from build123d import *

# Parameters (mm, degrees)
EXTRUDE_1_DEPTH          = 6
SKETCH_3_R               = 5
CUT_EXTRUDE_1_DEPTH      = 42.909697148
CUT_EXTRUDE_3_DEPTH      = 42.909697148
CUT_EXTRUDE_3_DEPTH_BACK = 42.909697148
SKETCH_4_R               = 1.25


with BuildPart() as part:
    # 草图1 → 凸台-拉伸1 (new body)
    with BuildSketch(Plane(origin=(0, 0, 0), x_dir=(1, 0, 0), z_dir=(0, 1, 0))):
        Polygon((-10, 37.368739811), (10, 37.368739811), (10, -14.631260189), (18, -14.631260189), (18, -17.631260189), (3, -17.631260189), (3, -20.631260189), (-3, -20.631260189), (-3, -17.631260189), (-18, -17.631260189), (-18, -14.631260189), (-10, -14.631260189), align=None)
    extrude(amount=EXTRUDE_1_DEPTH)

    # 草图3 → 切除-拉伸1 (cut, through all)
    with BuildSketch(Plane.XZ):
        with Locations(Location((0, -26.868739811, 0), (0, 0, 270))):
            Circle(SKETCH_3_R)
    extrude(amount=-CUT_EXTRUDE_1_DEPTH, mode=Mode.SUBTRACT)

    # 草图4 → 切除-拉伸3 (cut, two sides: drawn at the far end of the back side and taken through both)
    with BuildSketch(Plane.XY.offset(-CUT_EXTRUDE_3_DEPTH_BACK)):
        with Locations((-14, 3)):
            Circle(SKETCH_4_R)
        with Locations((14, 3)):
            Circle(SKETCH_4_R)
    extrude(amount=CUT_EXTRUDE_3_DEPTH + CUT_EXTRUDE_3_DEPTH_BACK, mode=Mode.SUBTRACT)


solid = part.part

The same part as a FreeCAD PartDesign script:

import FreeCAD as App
import Part
import Sketcher

doc = App.newDocument("Part")
body = doc.addObject("PartDesign::Body", "Body")

# Sketch on XZ plane
sketch1 = body.newObject("Sketcher::SketchObject", "Sketch")
sketch1.AttachmentSupport = (doc.getObject("XZ_Plane"), [""])
sketch1.MapMode = "FlatFace"
sketch1.addGeometry(Part.LineSegment(App.Vector(10, -37.4, 0), App.Vector(-10, -37.4, 0)), False)
sketch1.addGeometry(Part.LineSegment(App.Vector(-10, -37.4, 0), App.Vector(-10, 14.6, 0)), False)
sketch1.addGeometry(Part.LineSegment(App.Vector(-10, 14.6, 0), App.Vector(-18, 14.6, 0)), False)
sketch1.addGeometry(Part.LineSegment(App.Vector(-18, 14.6, 0), App.Vector(-18, 17.6, 0)), False)
sketch1.addGeometry(Part.LineSegment(App.Vector(-18, 17.6, 0), App.Vector(-3, 17.6, 0)), False)
sketch1.addGeometry(Part.LineSegment(App.Vector(-3, 17.6, 0), App.Vector(-3, 20.6, 0)), False)
sketch1.addGeometry(Part.LineSegment(App.Vector(-3, 20.6, 0), App.Vector(3, 20.6, 0)), False)
sketch1.addGeometry(Part.LineSegment(App.Vector(3, 20.6, 0), App.Vector(3, 17.6, 0)), False)
sketch1.addGeometry(Part.LineSegment(App.Vector(3, 17.6, 0), App.Vector(18, 17.6, 0)), False)
sketch1.addGeometry(Part.LineSegment(App.Vector(18, 17.6, 0), App.Vector(18, 14.6, 0)), False)
sketch1.addGeometry(Part.LineSegment(App.Vector(18, 14.6, 0), App.Vector(10, 14.6, 0)), False)
sketch1.addGeometry(Part.LineSegment(App.Vector(10, 14.6, 0), App.Vector(10, -37.4, 0)), False)
sketch1.addConstraint(Sketcher.Constraint("Coincident", 0, 2, 1, 1))
sketch1.addConstraint(Sketcher.Constraint("Coincident", 1, 2, 2, 1))
sketch1.addConstraint(Sketcher.Constraint("Coincident", 2, 2, 3, 1))
sketch1.addConstraint(Sketcher.Constraint("Coincident", 3, 2, 4, 1))
sketch1.addConstraint(Sketcher.Constraint("Coincident", 4, 2, 5, 1))
sketch1.addConstraint(Sketcher.Constraint("Coincident", 5, 2, 6, 1))
sketch1.addConstraint(Sketcher.Constraint("Coincident", 6, 2, 7, 1))
sketch1.addConstraint(Sketcher.Constraint("Coincident", 7, 2, 8, 1))
sketch1.addConstraint(Sketcher.Constraint("Coincident", 8, 2, 9, 1))
sketch1.addConstraint(Sketcher.Constraint("Coincident", 9, 2, 10, 1))
sketch1.addConstraint(Sketcher.Constraint("Coincident", 10, 2, 11, 1))
sketch1.addConstraint(Sketcher.Constraint("Coincident", 11, 2, 0, 1))
sketch1.addConstraint(Sketcher.Constraint("Horizontal", 0))
sketch1.addConstraint(Sketcher.Constraint("Vertical", 1))
sketch1.addConstraint(Sketcher.Constraint("Horizontal", 2))
sketch1.addConstraint(Sketcher.Constraint("Vertical", 3))
sketch1.addConstraint(Sketcher.Constraint("Horizontal", 4))
sketch1.addConstraint(Sketcher.Constraint("Vertical", 5))
sketch1.addConstraint(Sketcher.Constraint("Horizontal", 6))
sketch1.addConstraint(Sketcher.Constraint("Vertical", 7))
sketch1.addConstraint(Sketcher.Constraint("Horizontal", 8))
sketch1.addConstraint(Sketcher.Constraint("Vertical", 9))
sketch1.addConstraint(Sketcher.Constraint("Horizontal", 10))
sketch1.addConstraint(Sketcher.Constraint("Vertical", 11))
sketch1.addConstraint(Sketcher.Constraint("Symmetric", 4, 2, 7, 2, -2))
sketch1.addConstraint(Sketcher.Constraint("Symmetric", 2, 2, 9, 2, -2))
sketch1.addConstraint(Sketcher.Constraint("Equal", 2, 10))
sketch1.addConstraint(Sketcher.Constraint("Equal", 3, 5))
sketch1.addConstraint(Sketcher.Constraint("DistanceX", 0, 2, 0, 1, 20.0))
sketch1.addConstraint(Sketcher.Constraint("DistanceX", 2, 2, 2, 1, 8.0))
sketch1.addConstraint(Sketcher.Constraint("DistanceX", 4, 1, 4, 2, 15.0))
sketch1.addConstraint(Sketcher.Constraint("DistanceY", 1, 1, 1, 2, 52.0))
sketch1.addConstraint(Sketcher.Constraint("DistanceY", 3, 1, 3, 2, 3.0))
sketch1.addConstraint(Sketcher.Constraint("DistanceY", 0, 2, -1, 1, 37.36874))
pad1 = body.newObject("PartDesign::Pad", "Pad")
pad1.Profile = sketch1
pad1.Length = 6
pad1.Reversed = True

# Sketch on XZ plane
sketch2 = body.newObject("Sketcher::SketchObject", "Sketch001")
sketch2.AttachmentSupport = (doc.getObject("XZ_Plane"), [""])
sketch2.MapMode = "FlatFace"
sketch2.addGeometry(Part.Circle(App.Vector(0, -27, 0), App.Vector(0, 0, 1), 5), False)
sketch2.addConstraint(Sketcher.Constraint("PointOnObject", 0, 3, -2))
sketch2.addConstraint(Sketcher.Constraint("Diameter", 0, 10.0))
sketch2.addConstraint(Sketcher.Constraint("DistanceY", 0, 3, -1, 1, 26.86874))
pocket1 = body.newObject("PartDesign::Pocket", "Pocket")
pocket1.Profile = sketch2
pocket1.Type = "ThroughAll"

# Sketch on XY plane
sketch3 = body.newObject("Sketcher::SketchObject", "Sketch002")
sketch3.AttachmentSupport = (doc.getObject("XY_Plane"), [""])
sketch3.MapMode = "FlatFace"
sketch3.addGeometry(Part.Circle(App.Vector(-14, 3, 0), App.Vector(0, 0, 1), 1.2), False)
sketch3.addGeometry(Part.Circle(App.Vector(14, 3, 0), App.Vector(0, 0, 1), 1.2), False)
sketch3.addConstraint(Sketcher.Constraint("Equal", 0, 1))
sketch3.addConstraint(Sketcher.Constraint("Symmetric", 0, 3, 1, 3, -2))
sketch3.addConstraint(Sketcher.Constraint("Diameter", 0, 2.5))
sketch3.addConstraint(Sketcher.Constraint("DistanceX", 0, 3, -1, 1, 14.0))
sketch3.addConstraint(Sketcher.Constraint("DistanceY", -1, 1, 0, 3, 3.0))
pocket2 = body.newObject("PartDesign::Pocket", "Pocket001")
pocket2.Profile = sketch3
pocket2.Type = "ThroughAll"
pocket2.Midplane = True

doc.recompute()
